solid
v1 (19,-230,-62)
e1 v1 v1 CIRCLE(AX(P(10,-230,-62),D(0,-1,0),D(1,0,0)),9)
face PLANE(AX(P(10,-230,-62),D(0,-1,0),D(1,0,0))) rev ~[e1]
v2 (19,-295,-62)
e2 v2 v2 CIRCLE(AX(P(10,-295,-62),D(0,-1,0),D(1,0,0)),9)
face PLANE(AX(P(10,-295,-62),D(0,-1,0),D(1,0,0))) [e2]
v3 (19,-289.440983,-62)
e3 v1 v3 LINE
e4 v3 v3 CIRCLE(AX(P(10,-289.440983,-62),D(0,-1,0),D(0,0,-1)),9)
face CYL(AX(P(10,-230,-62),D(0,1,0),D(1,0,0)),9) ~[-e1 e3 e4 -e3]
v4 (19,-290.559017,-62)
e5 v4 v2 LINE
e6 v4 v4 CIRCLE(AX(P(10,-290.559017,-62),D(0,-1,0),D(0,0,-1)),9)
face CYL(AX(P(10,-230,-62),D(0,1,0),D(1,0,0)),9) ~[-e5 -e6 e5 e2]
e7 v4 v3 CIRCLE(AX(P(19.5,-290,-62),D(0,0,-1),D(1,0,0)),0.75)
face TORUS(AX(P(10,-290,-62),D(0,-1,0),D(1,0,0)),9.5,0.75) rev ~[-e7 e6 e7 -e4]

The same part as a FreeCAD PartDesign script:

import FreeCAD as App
import Part
import Sketcher
from FreeCAD import Vector
Q = App.Units.Quantity

doc = App.newDocument("Part")
body = doc.addObject("PartDesign::Body", "Body")

sketch1 = body.newObject("Sketcher::SketchObject", "Sketch")
sketch1.AttachmentSupport = (doc.getObject("XZ_Plane"), [""])
sketch1.MapMode = "FlatFace"
sketch1.addGeometry(Part.Circle(Vector(9.5, 60, 0), Vector(0, 0, 1), 0.8), False)
sketch1.addConstraint([
    Sketcher.Constraint("Diameter", 0, Q("1.5 mm")),
    Sketcher.Constraint("DistanceY", -1, 1, 0, 3, Q("60 mm")),
    Sketcher.Constraint("DistanceX", -1, 1, 0, 3, Q("9.5 mm")),
])
revolution = body.newObject("PartDesign::Revolution", "Revolution")
revolution.Profile = sketch1
revolution.ReferenceAxis = (sketch1, ["V_Axis"])
revolution.Angle = 360
body2 = doc.addObject("PartDesign::Body", "Body001")

sketch2 = body2.newObject("Sketcher::SketchObject", "Sketch001")
sketch2.AttachmentSupport = (doc.getObject("XY_Plane001"), [""])
sketch2.MapMode = "FlatFace"
sketch2.addGeometry(Part.Circle(Vector(0, 0, 0), Vector(0, 0, 1), 9), False)
sketch2.addConstraint([
    Sketcher.Constraint("Coincident", 0, 3, -1, 1),
    Sketcher.Constraint("Diameter", 0, Q("18 mm")),
])
pad1 = body2.newObject("PartDesign::Pad", "Pad")
pad1.Profile = sketch2
pad1.Length = 65
doc.recompute()

boolean = body2.newObject("PartDesign::Boolean", "Boolean")
boolean.Type = "Cut"
boolean.addObjects([body])
body3 = doc.addObject("PartDesign::Body", "Body002")
doc.recompute()

body2.Placement = App.Placement(Vector(10, -230, -62), App.Rotation(Vector(1, 0, 0), 90))
boolean2 = body3.newObject("PartDesign::Boolean", "Boolean001")
boolean2.Type = "Fuse"
boolean2.addObjects([body2])

doc.recompute()
